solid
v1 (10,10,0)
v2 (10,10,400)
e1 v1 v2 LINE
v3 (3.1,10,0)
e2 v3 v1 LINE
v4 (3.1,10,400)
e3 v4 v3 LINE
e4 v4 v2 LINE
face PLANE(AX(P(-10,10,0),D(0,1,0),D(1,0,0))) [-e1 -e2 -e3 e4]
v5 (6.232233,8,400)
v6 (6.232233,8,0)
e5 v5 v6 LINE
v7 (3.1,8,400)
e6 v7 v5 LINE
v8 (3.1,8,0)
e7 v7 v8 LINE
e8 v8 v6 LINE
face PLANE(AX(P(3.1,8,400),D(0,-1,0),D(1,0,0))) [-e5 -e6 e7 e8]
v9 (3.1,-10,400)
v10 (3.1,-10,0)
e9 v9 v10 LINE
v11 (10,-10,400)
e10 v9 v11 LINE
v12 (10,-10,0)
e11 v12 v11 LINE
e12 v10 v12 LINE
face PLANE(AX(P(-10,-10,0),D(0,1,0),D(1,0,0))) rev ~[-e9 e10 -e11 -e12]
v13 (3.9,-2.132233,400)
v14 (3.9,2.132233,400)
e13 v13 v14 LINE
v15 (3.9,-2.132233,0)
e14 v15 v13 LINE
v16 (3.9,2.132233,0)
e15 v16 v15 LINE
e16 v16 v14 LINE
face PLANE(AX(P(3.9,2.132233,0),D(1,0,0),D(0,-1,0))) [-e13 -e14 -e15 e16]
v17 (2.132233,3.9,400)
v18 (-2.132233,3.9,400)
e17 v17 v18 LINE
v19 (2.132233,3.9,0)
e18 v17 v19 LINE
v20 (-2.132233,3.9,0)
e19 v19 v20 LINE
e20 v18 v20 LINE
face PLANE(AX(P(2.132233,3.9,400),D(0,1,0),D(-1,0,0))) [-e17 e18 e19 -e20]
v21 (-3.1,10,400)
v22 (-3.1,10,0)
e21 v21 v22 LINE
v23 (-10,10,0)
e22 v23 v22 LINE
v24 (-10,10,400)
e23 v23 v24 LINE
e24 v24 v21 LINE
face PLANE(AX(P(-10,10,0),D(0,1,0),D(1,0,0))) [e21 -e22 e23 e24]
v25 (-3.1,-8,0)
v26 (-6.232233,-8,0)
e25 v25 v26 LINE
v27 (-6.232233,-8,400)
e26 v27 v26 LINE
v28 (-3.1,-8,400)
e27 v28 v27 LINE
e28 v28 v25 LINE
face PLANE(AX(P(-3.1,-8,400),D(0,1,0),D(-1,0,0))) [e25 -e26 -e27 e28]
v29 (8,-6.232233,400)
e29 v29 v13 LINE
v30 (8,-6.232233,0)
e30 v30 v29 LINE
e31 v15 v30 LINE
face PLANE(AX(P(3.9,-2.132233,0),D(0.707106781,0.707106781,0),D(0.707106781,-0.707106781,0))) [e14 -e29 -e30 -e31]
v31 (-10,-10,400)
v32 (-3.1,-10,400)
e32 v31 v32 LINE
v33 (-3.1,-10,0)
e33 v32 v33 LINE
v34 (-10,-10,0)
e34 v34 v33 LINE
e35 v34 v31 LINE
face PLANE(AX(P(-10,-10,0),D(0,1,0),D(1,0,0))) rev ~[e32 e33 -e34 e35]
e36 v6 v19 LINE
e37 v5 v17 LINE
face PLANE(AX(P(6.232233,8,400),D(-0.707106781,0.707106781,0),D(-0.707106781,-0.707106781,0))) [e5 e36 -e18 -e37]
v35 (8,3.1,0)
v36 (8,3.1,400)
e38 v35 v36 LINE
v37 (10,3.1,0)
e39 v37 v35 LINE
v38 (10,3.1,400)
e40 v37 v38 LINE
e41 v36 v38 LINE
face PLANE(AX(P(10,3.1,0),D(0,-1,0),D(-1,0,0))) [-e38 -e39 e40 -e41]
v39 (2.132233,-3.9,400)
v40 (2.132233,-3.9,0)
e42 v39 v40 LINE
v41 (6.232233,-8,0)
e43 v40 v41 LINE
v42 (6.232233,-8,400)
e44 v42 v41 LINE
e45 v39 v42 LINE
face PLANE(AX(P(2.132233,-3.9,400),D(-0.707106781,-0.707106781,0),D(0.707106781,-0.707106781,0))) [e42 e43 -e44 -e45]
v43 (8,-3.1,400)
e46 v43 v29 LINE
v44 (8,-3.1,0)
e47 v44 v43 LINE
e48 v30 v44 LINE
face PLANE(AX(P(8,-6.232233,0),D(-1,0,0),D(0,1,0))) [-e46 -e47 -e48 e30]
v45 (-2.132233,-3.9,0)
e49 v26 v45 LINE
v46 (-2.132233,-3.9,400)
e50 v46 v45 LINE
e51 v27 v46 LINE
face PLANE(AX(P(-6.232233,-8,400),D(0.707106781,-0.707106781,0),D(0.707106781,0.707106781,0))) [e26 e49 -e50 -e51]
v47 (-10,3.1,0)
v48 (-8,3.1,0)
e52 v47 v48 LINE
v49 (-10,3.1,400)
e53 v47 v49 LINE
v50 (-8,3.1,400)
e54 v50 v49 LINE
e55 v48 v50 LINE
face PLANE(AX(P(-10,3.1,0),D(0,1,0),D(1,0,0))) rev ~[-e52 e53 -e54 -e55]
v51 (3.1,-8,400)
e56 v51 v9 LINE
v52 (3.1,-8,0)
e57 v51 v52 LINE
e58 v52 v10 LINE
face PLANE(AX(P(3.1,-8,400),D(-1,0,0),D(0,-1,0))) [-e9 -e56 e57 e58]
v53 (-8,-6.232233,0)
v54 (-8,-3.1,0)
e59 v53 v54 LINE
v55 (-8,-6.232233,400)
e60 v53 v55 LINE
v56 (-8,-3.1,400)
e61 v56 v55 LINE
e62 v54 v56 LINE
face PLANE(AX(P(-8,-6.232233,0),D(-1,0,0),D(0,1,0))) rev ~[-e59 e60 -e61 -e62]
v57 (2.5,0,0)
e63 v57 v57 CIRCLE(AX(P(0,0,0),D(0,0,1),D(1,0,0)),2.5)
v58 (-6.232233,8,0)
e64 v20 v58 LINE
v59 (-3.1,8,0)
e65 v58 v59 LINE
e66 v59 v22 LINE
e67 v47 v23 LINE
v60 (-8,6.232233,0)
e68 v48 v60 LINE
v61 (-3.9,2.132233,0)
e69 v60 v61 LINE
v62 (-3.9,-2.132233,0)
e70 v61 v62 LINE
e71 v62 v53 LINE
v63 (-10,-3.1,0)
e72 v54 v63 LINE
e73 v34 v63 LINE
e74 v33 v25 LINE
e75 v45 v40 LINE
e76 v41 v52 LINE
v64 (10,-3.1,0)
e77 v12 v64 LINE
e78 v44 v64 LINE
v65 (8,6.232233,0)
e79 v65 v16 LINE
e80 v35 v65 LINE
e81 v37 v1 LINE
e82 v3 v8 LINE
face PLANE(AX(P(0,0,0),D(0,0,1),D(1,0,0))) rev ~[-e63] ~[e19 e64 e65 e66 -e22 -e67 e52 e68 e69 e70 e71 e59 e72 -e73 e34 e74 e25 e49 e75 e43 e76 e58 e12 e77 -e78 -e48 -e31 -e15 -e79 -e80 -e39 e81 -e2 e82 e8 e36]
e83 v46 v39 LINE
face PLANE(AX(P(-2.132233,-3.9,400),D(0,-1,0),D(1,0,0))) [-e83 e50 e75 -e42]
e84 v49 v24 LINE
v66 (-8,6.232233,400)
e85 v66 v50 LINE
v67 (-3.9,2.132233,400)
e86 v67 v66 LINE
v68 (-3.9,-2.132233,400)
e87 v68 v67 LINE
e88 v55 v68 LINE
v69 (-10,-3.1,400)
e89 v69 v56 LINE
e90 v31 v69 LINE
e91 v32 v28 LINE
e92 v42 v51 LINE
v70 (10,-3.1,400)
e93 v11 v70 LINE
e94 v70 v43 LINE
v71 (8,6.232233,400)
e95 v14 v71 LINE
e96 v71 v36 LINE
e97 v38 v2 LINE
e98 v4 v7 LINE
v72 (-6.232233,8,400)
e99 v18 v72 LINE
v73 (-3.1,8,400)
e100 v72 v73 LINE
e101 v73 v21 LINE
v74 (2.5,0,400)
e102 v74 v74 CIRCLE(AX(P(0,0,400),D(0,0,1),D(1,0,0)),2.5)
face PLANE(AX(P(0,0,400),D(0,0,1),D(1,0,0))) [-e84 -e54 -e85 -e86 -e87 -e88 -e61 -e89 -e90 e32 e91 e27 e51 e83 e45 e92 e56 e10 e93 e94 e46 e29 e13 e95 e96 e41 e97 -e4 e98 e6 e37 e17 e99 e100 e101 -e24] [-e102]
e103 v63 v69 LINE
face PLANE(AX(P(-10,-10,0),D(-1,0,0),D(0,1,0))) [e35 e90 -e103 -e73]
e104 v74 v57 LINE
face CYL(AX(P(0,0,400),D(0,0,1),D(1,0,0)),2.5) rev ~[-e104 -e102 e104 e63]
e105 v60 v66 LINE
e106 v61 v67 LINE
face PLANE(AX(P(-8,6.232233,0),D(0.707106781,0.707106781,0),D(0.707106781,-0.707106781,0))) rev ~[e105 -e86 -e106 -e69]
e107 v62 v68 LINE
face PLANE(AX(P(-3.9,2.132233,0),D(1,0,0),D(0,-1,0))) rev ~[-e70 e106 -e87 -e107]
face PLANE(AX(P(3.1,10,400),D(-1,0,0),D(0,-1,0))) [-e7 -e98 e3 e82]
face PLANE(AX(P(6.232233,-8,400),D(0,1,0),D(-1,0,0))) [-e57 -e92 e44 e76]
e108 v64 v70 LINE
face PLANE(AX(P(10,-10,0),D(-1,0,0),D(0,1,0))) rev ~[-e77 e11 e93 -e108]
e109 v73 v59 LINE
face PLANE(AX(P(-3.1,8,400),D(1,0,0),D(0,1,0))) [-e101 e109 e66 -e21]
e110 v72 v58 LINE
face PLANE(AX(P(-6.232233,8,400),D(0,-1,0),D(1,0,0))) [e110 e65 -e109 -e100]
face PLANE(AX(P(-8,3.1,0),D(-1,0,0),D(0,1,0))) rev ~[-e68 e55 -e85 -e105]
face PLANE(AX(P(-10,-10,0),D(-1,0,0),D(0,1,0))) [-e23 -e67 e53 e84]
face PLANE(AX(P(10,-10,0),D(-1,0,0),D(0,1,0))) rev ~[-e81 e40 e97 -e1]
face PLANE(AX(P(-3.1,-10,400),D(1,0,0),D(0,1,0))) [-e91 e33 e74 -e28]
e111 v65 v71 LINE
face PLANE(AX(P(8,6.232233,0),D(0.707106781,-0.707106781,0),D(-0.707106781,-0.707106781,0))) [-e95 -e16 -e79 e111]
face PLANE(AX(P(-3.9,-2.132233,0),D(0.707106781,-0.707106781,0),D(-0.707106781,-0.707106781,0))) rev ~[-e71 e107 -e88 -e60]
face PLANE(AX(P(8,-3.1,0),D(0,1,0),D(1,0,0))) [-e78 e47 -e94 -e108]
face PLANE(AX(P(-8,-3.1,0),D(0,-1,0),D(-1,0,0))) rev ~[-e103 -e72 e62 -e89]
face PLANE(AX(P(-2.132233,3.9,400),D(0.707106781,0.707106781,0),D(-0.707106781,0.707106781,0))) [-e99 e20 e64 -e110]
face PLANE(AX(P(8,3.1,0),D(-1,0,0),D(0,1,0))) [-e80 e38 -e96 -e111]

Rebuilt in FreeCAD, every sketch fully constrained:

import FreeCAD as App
import Part
import Sketcher

V = App.Vector
Q = App.Units.Quantity

doc = App.newDocument("Part")
body = doc.addObject("PartDesign::Body", "Body")

sketch1 = body.newObject("Sketcher::SketchObject", "Sketch")
sketch1.AttachmentSupport = (doc.getObject("XY_Plane"), [""])
sketch1.MapMode = "FlatFace"
sketch1.addGeometry([
    Part.LineSegment(V(-10, 10, 0), V(-10, -10, 0)),
    Part.LineSegment(V(-10, -10, 0), V(10, -10, 0)),
    Part.LineSegment(V(10, -10, 0), V(10, 10, 0)),
    Part.LineSegment(V(10, 10, 0), V(-10, 10, 0)),
], False)
sketch1.addConstraint([
    Sketcher.Constraint("Coincident", 0, 2, 1, 1),
    Sketcher.Constraint("Coincident", 1, 2, 2, 1),
    Sketcher.Constraint("Coincident", 2, 2, 3, 1),
    Sketcher.Constraint("Coincident", 3, 2, 0, 1),
    Sketcher.Constraint("Vertical", 0),
    Sketcher.Constraint("Horizontal", 1),
    Sketcher.Constraint("Vertical", 2),
    Sketcher.Constraint("Horizontal", 3),
    Sketcher.Constraint("Symmetric", 0, 2, 2, 2, -1, 1),
    Sketcher.Constraint("Equal", 3, 0),
    Sketcher.Constraint("DistanceX", 1, 1, 1, 2, Q("20 mm")),
])
pad1 = body.newObject("PartDesign::Pad", "Pad")
pad1.Profile = sketch1
pad1.Length = 400

sketch2 = body.newObject("Sketcher::SketchObject", "Sketch001")
sketch2.AttachmentSupport = (doc.getObject("XY_Plane"), [""])
sketch2.MapMode = "FlatFace"
sketch2.AttachmentOffset = App.Placement(V(0, 0, 400), App.Rotation())
sketch2.addGeometry([
    Part.Circle(V(0, 0, 0), V(0, 0, 1), 2.5),
    Part.LineSegment(V(3.1, 10, 0), V(-3.1, 10, 0)),
    Part.LineSegment(V(-3.1, 10, 0), V(-3.1, 8, 0)),
    Part.LineSegment(V(-3.1, 8, 0), V(-6.2, 8, 0)),
    Part.LineSegment(V(-6.2, 8, 0), V(-2.1, 3.9, 0)),
    Part.LineSegment(V(-2.1, 3.9, 0), V(2.1, 3.9, 0)),
    Part.LineSegment(V(2.1, 3.9, 0), V(6.2, 8, 0)),
    Part.LineSegment(V(6.2, 8, 0), V(3.1, 8, 0)),
    Part.LineSegment(V(3.1, 8, 0), V(3.1, 10, 0)),
    Part.LineSegment(V(-6.2, -8, 0), V(-3.1, -8, 0)),
    Part.LineSegment(V(-3.1, -8, 0), V(-3.1, -10, 0)),
    Part.LineSegment(V(-3.1, -10, 0), V(3.1, -10, 0)),
    Part.LineSegment(V(3.1, -10, 0), V(3.1, -8, 0)),
    Part.LineSegment(V(3.1, -8, 0), V(6.2, -8, 0)),
    Part.LineSegment(V(6.2, -8, 0), V(2.1, -3.9, 0)),
    Part.LineSegment(V(2.1, -3.9, 0), V(-2.1, -3.9, 0)),
    Part.LineSegment(V(-2.1, -3.9, 0), V(-6.2, -8, 0)),
], False)
sketch2.addConstraint([
    Sketcher.Constraint("Coincident", 1, 2, 2, 1),
    Sketcher.Constraint("Coincident", 2, 2, 3, 1),
    Sketcher.Constraint("Coincident", 3, 2, 4, 1),
    Sketcher.Constraint("Coincident", 4, 2, 5, 1),
    Sketcher.Constraint("Coincident", 5, 2, 6, 1),
    Sketcher.Constraint("Coincident", 6, 2, 7, 1),
    Sketcher.Constraint("Coincident", 7, 2, 8, 1),
    Sketcher.Constraint("Coincident", 8, 2, 1, 1),
    Sketcher.Constraint("Coincident", 9, 2, 10, 1),
    Sketcher.Constraint("Coincident", 10, 2, 11, 1),
    Sketcher.Constraint("Coincident", 11, 2, 12, 1),
    Sketcher.Constraint("Coincident", 12, 2, 13, 1),
    Sketcher.Constraint("Coincident", 13, 2, 14, 1),
    Sketcher.Constraint("Coincident", 14, 2, 15, 1),
    Sketcher.Constraint("Coincident", 15, 2, 16, 1),
    Sketcher.Constraint("Coincident", 16, 2, 9, 1),
    Sketcher.Constraint("Horizontal", 1),
    Sketcher.Constraint("Vertical", 2),
    Sketcher.Constraint("Horizontal", 3),
    Sketcher.Constraint("Horizontal", 5),
    Sketcher.Constraint("Horizontal", 7),
    Sketcher.Constraint("Vertical", 8),
    Sketcher.Constraint("Horizontal", 9),
    Sketcher.Constraint("Vertical", 10),
    Sketcher.Constraint("Horizontal", 11),
    Sketcher.Constraint("Vertical", 12),
    Sketcher.Constraint("Horizontal", 13),
    Sketcher.Constraint("Horizontal", 15),
    Sketcher.Constraint("Coincident", 0, 3, -1, 1),
    Sketcher.Constraint("Symmetric", 7, 2, 9, 2, -1, 1),
    Sketcher.Constraint("Symmetric", 1, 2, 11, 2, -1, 1),
    Sketcher.Constraint("Symmetric", 3, 2, 13, 2, -1, 1),
    Sketcher.Constraint("Symmetric", 4, 2, 14, 2, -1, 1),
    Sketcher.Constraint("Symmetric", 3, 2, 6, 2, -2),
    Sketcher.Constraint("Perpendicular", 4, 6),
    Sketcher.Constraint("Perpendicular", 14, 16),
    Sketcher.Constraint("Vertical", 2, 2, 9, 2),
    Sketcher.Constraint("Vertical", 5, 2, 14, 2),
    Sketcher.Constraint("Vertical", 4, 2, 15, 2),
    Sketcher.Constraint("Diameter", 0, Q("5 mm")),
    Sketcher.Constraint("DistanceY", 2, 2, 2, 1, Q("2 mm")),
    Sketcher.Constraint("DistanceX", 1, 2, 1, 1, Q("6.2 mm")),
    Sketcher.Constraint("DistanceY", -1, 1, 1, 2, Q("10 mm")),
    Sketcher.Constraint("DistanceY", -1, 1, 4, 2, Q("3.9 mm")),
    Sketcher.Constraint("DistanceX", 3, 2, 3, 1, Q("3.132233 mm")),
])
pocket1 = body.newObject("PartDesign::Pocket", "Pocket")
pocket1.Profile = sketch2
pocket1.Type = "ThroughAll"

sketch3 = body.newObject("Sketcher::SketchObject", "Sketch002")
sketch3.AttachmentSupport = (doc.getObject("XY_Plane"), [""])
sketch3.MapMode = "FlatFace"
sketch3.addGeometry([
    Part.LineSegment(V(-10, 3.1, 0), V(-8, 3.1, 0)),
    Part.LineSegment(V(-8, 3.1, 0), V(-8, 6.2, 0)),
    Part.LineSegment(V(-8, 6.2, 0), V(-3.9, 2.1, 0)),
    Part.LineSegment(V(-3.9, 2.1, 0), V(-3.9, -2.1, 0)),
    Part.LineSegment(V(-3.9, -2.1, 0), V(-8, -6.2, 0)),
    Part.LineSegment(V(-8, -6.2, 0), V(-8, -3.1, 0)),
    Part.LineSegment(V(-8, -3.1, 0), V(-10, -3.1, 0)),
    Part.LineSegment(V(-10, -3.1, 0), V(-10, 3.1, 0)),
    Part.LineSegment(V(3.9, -2.1, 0), V(3.9, 2.1, 0)),
    Part.LineSegment(V(3.9, 2.1, 0), V(8, 6.2, 0)),
    Part.LineSegment(V(8, 6.2, 0), V(8, 3.1, 0)),
    Part.LineSegment(V(8, 3.1, 0), V(10, 3.1, 0)),
    Part.LineSegment(V(10, 3.1, 0), V(10, -3.1, 0)),
    Part.LineSegment(V(10, -3.1, 0), V(8, -3.1, 0)),
    Part.LineSegment(V(8, -3.1, 0), V(8, -6.2, 0)),
    Part.LineSegment(V(8, -6.2, 0), V(3.9, -2.1, 0)),
], False)
sketch3.addConstraint([
    Sketcher.Constraint("Coincident", 0, 2, 1, 1),
    Sketcher.Constraint("Coincident", 1, 2, 2, 1),
    Sketcher.Constraint("Coincident", 2, 2, 3, 1),
    Sketcher.Constraint("Coincident", 3, 2, 4, 1),
    Sketcher.Constraint("Coincident", 4, 2, 5, 1),
    Sketcher.Constraint("Coincident", 5, 2, 6, 1),
    Sketcher.Constraint("Coincident", 6, 2, 7, 1),
    Sketcher.Constraint("Coincident", 7, 2, 0, 1),
    Sketcher.Constraint("Coincident", 8, 2, 9, 1),
    Sketcher.Constraint("Coincident", 9, 2, 10, 1),
    Sketcher.Constraint("Coincident", 10, 2, 11, 1),
    Sketcher.Constraint("Coincident", 11, 2, 12, 1),
    Sketcher.Constraint("Coincident", 12, 2, 13, 1),
    Sketcher.Constraint("Coincident", 13, 2, 14, 1),
    Sketcher.Constraint("Coincident", 14, 2, 15, 1),
    Sketcher.Constraint("Coincident", 15, 2, 8, 1),
    Sketcher.Constraint("Horizontal", 0),
    Sketcher.Constraint("Vertical", 1),
    Sketcher.Constraint("Vertical", 3),
    Sketcher.Constraint("Vertical", 5),
    Sketcher.Constraint("Horizontal", 6),
    Sketcher.Constraint("Vertical", 7),
    Sketcher.Constraint("Vertical", 8),
    Sketcher.Constraint("Vertical", 10),
    Sketcher.Constraint("Horizontal", 11),
    Sketcher.Constraint("Vertical", 12),
    Sketcher.Constraint("Horizontal", 13),
    Sketcher.Constraint("Vertical", 14),
    Sketcher.Constraint("Symmetric", 3, 2, 8, 2, -1, 1),
    Sketcher.Constraint("Symmetric", 4, 2, 9, 2, -1, 1),
    Sketcher.Constraint("Symmetric", 6, 2, 11, 2, -1, 1),
    Sketcher.Constraint("Symmetric", 0, 2, 13, 2, -1, 1),
    Sketcher.Constraint("Symmetric", 1, 2, 9, 2, -2),
    Sketcher.Constraint("Perpendicular", 2, 4),
    Sketcher.Constraint("Perpendicular", 9, 15),
    Sketcher.Constraint("Horizontal", 2, 2, 8, 2),
    Sketcher.Constraint("Horizontal", 7, 2, 10, 2),
    Sketcher.Constraint("Horizontal", 4, 2, 14, 2),
    Sketcher.Constraint("DistanceX", 0, 1, 0, 2, Q("2 mm")),
    Sketcher.Constraint("DistanceY", 7, 1, 7, 2, Q("6.2 mm")),
    Sketcher.Constraint("DistanceX", 0, 2, -1, 1, Q("8 mm")),
    Sketcher.Constraint("DistanceX", 2, 2, -1, 1, Q("3.9 mm")),
    Sketcher.Constraint("DistanceY", 1, 1, 1, 2, Q("3.132233 mm")),
])
pocket2 = body.newObject("PartDesign::Pocket", "Pocket001")
pocket2.Profile = sketch3
pocket2.Type = "ThroughAll"
pocket2.Reversed = True

doc.recompute()
